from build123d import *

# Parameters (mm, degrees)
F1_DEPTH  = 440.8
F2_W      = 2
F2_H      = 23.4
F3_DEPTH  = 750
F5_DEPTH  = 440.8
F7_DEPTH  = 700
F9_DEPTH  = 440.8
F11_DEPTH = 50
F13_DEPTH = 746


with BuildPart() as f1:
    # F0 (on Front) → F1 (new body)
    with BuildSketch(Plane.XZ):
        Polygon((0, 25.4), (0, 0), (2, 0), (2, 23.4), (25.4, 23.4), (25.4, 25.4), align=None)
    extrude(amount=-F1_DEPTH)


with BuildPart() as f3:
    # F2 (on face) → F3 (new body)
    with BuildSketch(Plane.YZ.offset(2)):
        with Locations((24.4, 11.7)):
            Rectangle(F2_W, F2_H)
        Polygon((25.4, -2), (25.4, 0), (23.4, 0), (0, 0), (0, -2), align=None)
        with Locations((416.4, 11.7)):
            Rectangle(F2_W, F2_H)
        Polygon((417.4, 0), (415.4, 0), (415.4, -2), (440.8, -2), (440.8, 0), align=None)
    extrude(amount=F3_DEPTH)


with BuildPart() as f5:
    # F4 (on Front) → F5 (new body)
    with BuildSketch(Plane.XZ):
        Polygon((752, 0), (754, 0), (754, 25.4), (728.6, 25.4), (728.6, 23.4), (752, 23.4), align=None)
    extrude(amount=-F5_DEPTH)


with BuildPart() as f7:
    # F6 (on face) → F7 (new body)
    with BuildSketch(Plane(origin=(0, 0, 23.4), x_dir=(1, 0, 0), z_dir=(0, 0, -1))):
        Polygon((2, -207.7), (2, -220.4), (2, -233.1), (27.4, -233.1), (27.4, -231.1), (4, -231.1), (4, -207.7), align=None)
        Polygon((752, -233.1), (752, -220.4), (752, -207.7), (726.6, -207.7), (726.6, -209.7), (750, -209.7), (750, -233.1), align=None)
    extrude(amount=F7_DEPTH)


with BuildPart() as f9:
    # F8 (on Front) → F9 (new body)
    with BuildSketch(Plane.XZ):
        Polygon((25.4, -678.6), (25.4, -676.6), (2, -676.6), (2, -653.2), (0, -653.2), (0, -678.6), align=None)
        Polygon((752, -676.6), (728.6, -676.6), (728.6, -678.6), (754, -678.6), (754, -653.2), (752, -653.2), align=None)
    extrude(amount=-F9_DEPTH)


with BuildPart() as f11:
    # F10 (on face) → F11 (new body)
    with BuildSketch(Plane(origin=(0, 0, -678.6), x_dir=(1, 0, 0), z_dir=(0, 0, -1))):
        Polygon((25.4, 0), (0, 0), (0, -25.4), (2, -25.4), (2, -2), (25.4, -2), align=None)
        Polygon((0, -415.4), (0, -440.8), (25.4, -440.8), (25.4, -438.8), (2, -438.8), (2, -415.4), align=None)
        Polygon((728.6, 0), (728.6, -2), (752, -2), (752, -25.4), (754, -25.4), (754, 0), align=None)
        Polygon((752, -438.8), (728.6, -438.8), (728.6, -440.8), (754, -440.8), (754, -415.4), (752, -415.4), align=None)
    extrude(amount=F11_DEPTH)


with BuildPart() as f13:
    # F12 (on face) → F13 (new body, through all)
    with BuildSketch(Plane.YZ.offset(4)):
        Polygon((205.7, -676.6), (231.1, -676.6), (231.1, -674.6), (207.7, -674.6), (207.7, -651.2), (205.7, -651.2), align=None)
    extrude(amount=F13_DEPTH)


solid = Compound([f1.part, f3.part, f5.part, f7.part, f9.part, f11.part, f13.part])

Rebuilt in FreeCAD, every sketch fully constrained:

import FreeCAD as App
import Part
import Sketcher

V = App.Vector

doc = App.newDocument("Part")
params = doc.addObject("Spreadsheet::Sheet", "Params")
for row, (alias, value) in enumerate([
    ("sketch1_width", "2 mm"),
    ("sketch1_width2", "23.4 mm"),
    ("pad1_length", "440.8 mm"),
    ("sketch2_width", "2 mm"),
    ("sketch2_width2", "23.4 mm"),
    ("pad2_length", "750 mm"),
    ("sketch3_width", "2 mm"),
    ("sketch3_width2", "25.4 mm"),
    ("pad3_length", "440.8 mm"),
    ("sketch4_width", "2 mm"),
    ("sketch4_width2", "25.4 mm"),
    ("pad4_length", "700 mm"),
    ("sketch5_width", "2 mm"),
    ("sketch5_width2", "23.4 mm"),
    ("pad5_length", "440.8 mm"),
    ("sketch6_width", "2 mm"),
    ("sketch6_width2", "25.4 mm"),
    ("pad6_length", "50 mm"),
    ("sketch7_width", "2 mm"),
    ("sketch7_width2", "25.4 mm"),
    ("pad7_length", "746 mm"),
], start=1):
    params.set(f"A{row}", alias)
    params.set(f"B{row}", "=" + value)
    params.setAlias(f"B{row}", alias)

body = doc.addObject("PartDesign::Body", "Body")

# Sketch on XZ plane
sketch1 = body.newObject("Sketcher::SketchObject", "Sketch")
sketch1.AttachmentSupport = (doc.getObject("XZ_Plane"), [""])
sketch1.MapMode = "FlatFace"
sketch1.addGeometry([
    Part.LineSegment(V(0, 25.4, 0), V(0, 0, 0)),  # 0
    Part.LineSegment(V(0, 0, 0), V(2, 0, 0)),  # 1
    Part.LineSegment(V(2, 0, 0), V(2, 23.4, 0)),  # 2
    Part.LineSegment(V(2, 23.4, 0), V(25.4, 23.4, 0)),  # 3
    Part.LineSegment(V(25.4, 23.4, 0), V(25.4, 25.4, 0)),  # 4
    Part.LineSegment(V(25.4, 25.4, 0), V(0, 25.4, 0)),  # 5
], False)
sketch1.addConstraint([
    Sketcher.Constraint("Coincident", 0, 2, 1, 1),
    Sketcher.Constraint("Coincident", 1, 2, 2, 1),
    Sketcher.Constraint("Coincident", 2, 2, 3, 1),
    Sketcher.Constraint("Coincident", 3, 2, 4, 1),
    Sketcher.Constraint("Coincident", 4, 2, 5, 1),
    Sketcher.Constraint("Coincident", 5, 2, 0, 1),
    Sketcher.Constraint("Vertical", 0),
    Sketcher.Constraint("Horizontal", 1),
    Sketcher.Constraint("Vertical", 2),
    Sketcher.Constraint("Horizontal", 3),
    Sketcher.Constraint("Vertical", 4),
    Sketcher.Constraint("Horizontal", 5),
    Sketcher.Constraint("Coincident", 0, 2, -1, 1),
    Sketcher.Constraint("Equal", 5, 0),
    Sketcher.Constraint("Equal", 3, 2),
    Sketcher.Constraint("DistanceX", 1, 1, 1, 2, 2.0),
    Sketcher.Constraint("DistanceX", 3, 1, 3, 2, 23.4),
])
sketch1.setExpression("Constraints[15]", "Params.sketch1_width")
sketch1.setExpression("Constraints[16]", "Params.sketch1_width2")
pad1 = body.newObject("PartDesign::Pad", "Pad")
pad1.Profile = sketch1
pad1.setExpression("Length", "Params.pad1_length")
pad1.Reversed = True
body2 = doc.addObject("PartDesign::Body", "Body001")
body2.AllowCompound = True

# Sketch on YZ plane
sketch2 = body2.newObject("Sketcher::SketchObject", "Sketch001")
sketch2.AttachmentSupport = (doc.getObject("YZ_Plane001"), [""])
sketch2.MapMode = "FlatFace"
sketch2.AttachmentOffset = App.Placement(V(0, 0, 2), App.Rotation())
sketch2.addGeometry([
    Part.LineSegment(V(23.4, 23.4, 0), V(23.4, 0, 0)),  # 0
    Part.LineSegment(V(23.4, 0, 0), V(0, 0, 0)),  # 1
    Part.LineSegment(V(0, 0, 0), V(0, -2, 0)),  # 2
    Part.LineSegment(V(0, -2, 0), V(25.4, -2, 0)),  # 3
    Part.LineSegment(V(25.4, -2, 0), V(25.4, 23.4, 0)),  # 4
    Part.LineSegment(V(25.4, 23.4, 0), V(23.4, 23.4, 0)),  # 5
    Part.LineSegment(V(415.4, 23.4, 0), V(415.4, -2, 0)),  # 6
    Part.LineSegment(V(415.4, -2, 0), V(440.8, -2, 0)),  # 7
    Part.LineSegment(V(440.8, -2, 0), V(440.8, 0, 0)),  # 8
    Part.LineSegment(V(440.8, 0, 0), V(417.4, 0, 0)),  # 9
    Part.LineSegment(V(417.4, 0, 0), V(417.4, 23.4, 0)),  # 10
    Part.LineSegment(V(417.4, 23.4, 0), V(415.4, 23.4, 0)),  # 11
], False)
sketch2.addConstraint([
    Sketcher.Constraint("Coincident", 0, 2, 1, 1),
    Sketcher.Constraint("Coincident", 1, 2, 2, 1),
    Sketcher.Constraint("Coincident", 2, 2, 3, 1),
    Sketcher.Constraint("Coincident", 3, 2, 4, 1),
    Sketcher.Constraint("Coincident", 4, 2, 5, 1),
    Sketcher.Constraint("Coincident", 5, 2, 0, 1),
    Sketcher.Constraint("Coincident", 6, 2, 7, 1),
    Sketcher.Constraint("Coincident", 7, 2, 8, 1),
    Sketcher.Constraint("Coincident", 8, 2, 9, 1),
    Sketcher.Constraint("Coincident", 9, 2, 10, 1),
    Sketcher.Constraint("Coincident", 10, 2, 11, 1),
    Sketcher.Constraint("Coincident", 11, 2, 6, 1),
    Sketcher.Constraint("Vertical", 0),
    Sketcher.Constraint("Horizontal", 1),
    Sketcher.Constraint("Vertical", 2),
    Sketcher.Constraint("Horizontal", 3),
    Sketcher.Constraint("Vertical", 4),
    Sketcher.Constraint("Horizontal", 5),
    Sketcher.Constraint("Vertical", 6),
    Sketcher.Constraint("Horizontal", 7),
    Sketcher.Constraint("Vertical", 8),
    Sketcher.Constraint("Horizontal", 9),
    Sketcher.Constraint("Vertical", 10),
    Sketcher.Constraint("Horizontal", 11),
    Sketcher.Constraint("Coincident", 1, 2, -1, 1),
    Sketcher.Constraint("PointOnObject", 8, 2, -1),
    Sketcher.Constraint("Horizontal", 3, 2, 6, 2),
    Sketcher.Constraint("Horizontal", 5, 2, 10, 2),
    Sketcher.Constraint("Equal", 3, 7),
    Sketcher.Constraint("Equal", 1, 9),
    Sketcher.Constraint("Equal", 9, 0),
    Sketcher.Constraint("Equal", 11, 2),
    Sketcher.Constraint("DistanceX", 5, 2, 5, 1, 2.0),
    Sketcher.Constraint("DistanceX", 1, 2, 1, 1, 23.4),
    Sketcher.Constraint("DistanceX", 3, 2, 6, 2, 390.0),
])
sketch2.setExpression("Constraints[32]", "Params.sketch2_width")
sketch2.setExpression("Constraints[33]", "Params.sketch2_width2")
pad2 = body2.newObject("PartDesign::Pad", "Pad001")
pad2.Profile = sketch2
pad2.setExpression("Length", "Params.pad2_length")
body3 = doc.addObject("PartDesign::Body", "Body002")

# Sketch on XZ plane
sketch3 = body3.newObject("Sketcher::SketchObject", "Sketch002")
sketch3.AttachmentSupport = (doc.getObject("XZ_Plane002"), [""])
sketch3.MapMode = "FlatFace"
sketch3.addGeometry([
    Part.LineSegment(V(752, 0, 0), V(754, 0, 0)),  # 0
    Part.LineSegment(V(754, 0, 0), V(754, 25.4, 0)),  # 1
    Part.LineSegment(V(754, 25.4, 0), V(728.6, 25.4, 0)),  # 2
    Part.LineSegment(V(728.6, 25.4, 0), V(728.6, 23.4, 0)),  # 3
    Part.LineSegment(V(728.6, 23.4, 0), V(752, 23.4, 0)),  # 4
    Part.LineSegment(V(752, 23.4, 0), V(752, 0, 0)),  # 5
], False)
sketch3.addConstraint([
    Sketcher.Constraint("Coincident", 0, 2, 1, 1),
    Sketcher.Constraint("Coincident", 1, 2, 2, 1),
    Sketcher.Constraint("Coincident", 2, 2, 3, 1),
    Sketcher.Constraint("Coincident", 3, 2, 4, 1),
    Sketcher.Constraint("Coincident", 4, 2, 5, 1),
    Sketcher.Constraint("Coincident", 5, 2, 0, 1),
    Sketcher.Constraint("Horizontal", 0),
    Sketcher.Constraint("Vertical", 1),
    Sketcher.Constraint("Horizontal", 2),
    Sketcher.Constraint("Vertical", 3),
    Sketcher.Constraint("Horizontal", 4),
    Sketcher.Constraint("Vertical", 5),
    Sketcher.Constraint("PointOnObject", 0, 2, -1),
    Sketcher.Constraint("Equal", 2, 1),
    Sketcher.Constraint("Equal", 0, 3),
    Sketcher.Constraint("DistanceX", 0, 1, 0, 2, 2.0),
    Sketcher.Constraint("DistanceX", 2, 2, 2, 1, 25.4),
    Sketcher.Constraint("DistanceX", -1, 1, 0, 2, 754.0),
])
sketch3.setExpression("Constraints[15]", "Params.sketch3_width")
sketch3.setExpression("Constraints[16]", "Params.sketch3_width2")
pad3 = body3.newObject("PartDesign::Pad", "Pad002")
pad3.Profile = sketch3
pad3.setExpression("Length", "Params.pad3_length")
pad3.Reversed = True
body4 = doc.addObject("PartDesign::Body", "Body003")
body4.AllowCompound = True

# Sketch on XY plane
sketch4 = body4.newObject("Sketcher::SketchObject", "Sketch003")
sketch4.AttachmentSupport = (doc.getObject("XY_Plane003"), [""])
sketch4.MapMode = "FlatFace"
sketch4.AttachmentOffset = App.Placement(V(0, 0, 23.4), App.Rotation())
sketch4.addGeometry([
    Part.LineSegment(V(2, 207.7, 0), V(2, 233.1, 0)),  # 0
    Part.LineSegment(V(2, 233.1, 0), V(27.4, 233.1, 0)),  # 1
    Part.LineSegment(V(27.4, 233.1, 0), V(27.4, 231.1, 0)),  # 2
    Part.LineSegment(V(27.4, 231.1, 0), V(4, 231.1, 0)),  # 3
    Part.LineSegment(V(4, 231.1, 0), V(4, 207.7, 0)),  # 4
    Part.LineSegment(V(4, 207.7, 0), V(2, 207.7, 0)),  # 5
    Part.LineSegment(V(752, 233.1, 0), V(752, 207.7, 0)),  # 6
    Part.LineSegment(V(752, 207.7, 0), V(726.6, 207.7, 0)),  # 7
    Part.LineSegment(V(726.6, 207.7, 0), V(726.6, 209.7, 0)),  # 8
    Part.LineSegment(V(726.6, 209.7, 0), V(750, 209.7, 0)),  # 9
    Part.LineSegment(V(750, 209.7, 0), V(750, 233.1, 0)),  # 10
    Part.LineSegment(V(750, 233.1, 0), V(752, 233.1, 0)),  # 11
], False)
sketch4.addConstraint([
    Sketcher.Constraint("Coincident", 0, 2, 1, 1),
    Sketcher.Constraint("Coincident", 1, 2, 2, 1),
    Sketcher.Constraint("Coincident", 2, 2, 3, 1),
    Sketcher.Constraint("Coincident", 3, 2, 4, 1),
    Sketcher.Constraint("Coincident", 4, 2, 5, 1),
    Sketcher.Constraint("Coincident", 5, 2, 0, 1),
    Sketcher.Constraint("Coincident", 6, 2, 7, 1),
    Sketcher.Constraint("Coincident", 7, 2, 8, 1),
    Sketcher.Constraint("Coincident", 8, 2, 9, 1),
    Sketcher.Constraint("Coincident", 9, 2, 10, 1),
    Sketcher.Constraint("Coincident", 10, 2, 11, 1),
    Sketcher.Constraint("Coincident", 11, 2, 6, 1),
    Sketcher.Constraint("Vertical", 0),
    Sketcher.Constraint("Horizontal", 1),
    Sketcher.Constraint("Vertical", 2),
    Sketcher.Constraint("Horizontal", 3),
    Sketcher.Constraint("Vertical", 4),
    Sketcher.Constraint("Horizontal", 5),
    Sketcher.Constraint("Vertical", 6),
    Sketcher.Constraint("Horizontal", 7),
    Sketcher.Constraint("Vertical", 8),
    Sketcher.Constraint("Horizontal", 9),
    Sketcher.Constraint("Vertical", 10),
    Sketcher.Constraint("Horizontal", 11),
    Sketcher.Constraint("Horizontal", 5, 2, 6, 2),
    Sketcher.Constraint("Horizontal", 1, 2, 10, 2),
    Sketcher.Constraint("Equal", 1, 7),
    Sketcher.Constraint("Equal", 3, 9),
    Sketcher.Constraint("Equal", 7, 0),
    Sketcher.Constraint("Equal", 11, 2),
    Sketcher.Constraint("Equal", 2, 8),
    Sketcher.Constraint("DistanceX", 5, 2, 5, 1, 2.0),
    Sketcher.Constraint("DistanceX", 1, 1, 1, 2, 25.4),
    Sketcher.Constraint("DistanceX", -1, 1, 0, 2, 2.0),
    Sketcher.Constraint("DistanceX", -1, 1, 6, 2, 752.0),
    Sketcher.Constraint("DistanceY", -1, 1, 0, 2, 233.1),
])
sketch4.setExpression("Constraints[31]", "Params.sketch4_width")
sketch4.setExpression("Constraints[32]", "Params.sketch4_width2")
pad4 = body4.newObject("PartDesign::Pad", "Pad003")
pad4.Profile = sketch4
pad4.setExpression("Length", "Params.pad4_length")
pad4.Reversed = True
body5 = doc.addObject("PartDesign::Body", "Body004")
body5.AllowCompound = True

# Sketch on XZ plane
sketch5 = body5.newObject("Sketcher::SketchObject", "Sketch004")
sketch5.AttachmentSupport = (doc.getObject("XZ_Plane004"), [""])
sketch5.MapMode = "FlatFace"
sketch5.addGeometry([
    Part.LineSegment(V(25.4, -678.6, 0), V(25.4, -676.6, 0)),  # 0
    Part.LineSegment(V(25.4, -676.6, 0), V(2, -676.6, 0)),  # 1
    Part.LineSegment(V(2, -676.6, 0), V(2, -653.2, 0)),  # 2
    Part.LineSegment(V(2, -653.2, 0), V(0, -653.2, 0)),  # 3
    Part.LineSegment(V(0, -653.2, 0), V(0, -678.6, 0)),  # 4
    Part.LineSegment(V(0, -678.6, 0), V(25.4, -678.6, 0)),  # 5
    Part.LineSegment(V(752, -676.6, 0), V(728.6, -676.6, 0)),  # 6
    Part.LineSegment(V(728.6, -676.6, 0), V(728.6, -678.6, 0)),  # 7
    Part.LineSegment(V(728.6, -678.6, 0), V(754, -678.6, 0)),  # 8
    Part.LineSegment(V(754, -678.6, 0), V(754, -653.2, 0)),  # 9
    Part.LineSegment(V(754, -653.2, 0), V(752, -653.2, 0)),  # 10
    Part.LineSegment(V(752, -653.2, 0), V(752, -676.6, 0)),  # 11
], False)
sketch5.addConstraint([
    Sketcher.Constraint("Coincident", 0, 2, 1, 1),
    Sketcher.Constraint("Coincident", 1, 2, 2, 1),
    Sketcher.Constraint("Coincident", 2, 2, 3, 1),
    Sketcher.Constraint("Coincident", 3, 2, 4, 1),
    Sketcher.Constraint("Coincident", 4, 2, 5, 1),
    Sketcher.Constraint("Coincident", 5, 2, 0, 1),
    Sketcher.Constraint("Coincident", 6, 2, 7, 1),
    Sketcher.Constraint("Coincident", 7, 2, 8, 1),
    Sketcher.Constraint("Coincident", 8, 2, 9, 1),
    Sketcher.Constraint("Coincident", 9, 2, 10, 1),
    Sketcher.Constraint("Coincident", 10, 2, 11, 1),
    Sketcher.Constraint("Coincident", 11, 2, 6, 1),
    Sketcher.Constraint("Vertical", 0),
    Sketcher.Constraint("Horizontal", 1),
    Sketcher.Constraint("Vertical", 2),
    Sketcher.Constraint("Horizontal", 3),
    Sketcher.Constraint("Vertical", 4),
    Sketcher.Constraint("Horizontal", 5),
    Sketcher.Constraint("Horizontal", 6),
    Sketcher.Constraint("Vertical", 7),
    Sketcher.Constraint("Horizontal", 8),
    Sketcher.Constraint("Vertical", 9),
    Sketcher.Constraint("Horizontal", 10),
    Sketcher.Constraint("Vertical", 11),
    Sketcher.Constraint("PointOnObject", 3, 2, -2),
    Sketcher.Constraint("Horizontal", 1, 2, 6, 2),
    Sketcher.Constraint("Horizontal", 5, 2, 7, 2),
    Sketcher.Constraint("Horizontal", 3, 2, 9, 2),
    Sketcher.Constraint("Equal", 1, 6),
    Sketcher.Constraint("Equal", 5, 8),
    Sketcher.Constraint("Equal", 10, 0),
    Sketcher.Constraint("Equal", 6, 2),
    Sketcher.Constraint("DistanceX", 3, 2, 3, 1, 2.0),
    Sketcher.Constraint("DistanceX", 1, 2, 1, 1, 23.4),
    Sketcher.Constraint("DistanceX", -1, 1, 8, 2, 754.0),
    Sketcher.Constraint("DistanceY", 0, 2, -1, 1, 676.6),
])
sketch5.setExpression("Constraints[32]", "Params.sketch5_width")
sketch5.setExpression("Constraints[33]", "Params.sketch5_width2")
pad5 = body5.newObject("PartDesign::Pad", "Pad004")
pad5.Profile = sketch5
pad5.setExpression("Length", "Params.pad5_length")
pad5.Reversed = True
body6 = doc.addObject("PartDesign::Body", "Body005")
body6.AllowCompound = True

# Sketch on XY plane
sketch6 = body6.newObject("Sketcher::SketchObject", "Sketch005")
sketch6.AttachmentSupport = (doc.getObject("XY_Plane005"), [""])
sketch6.MapMode = "FlatFace"
sketch6.AttachmentOffset = App.Placement(V(0, 0, -678.6), App.Rotation())
sketch6.addGeometry([
    Part.LineSegment(V(25.4, 0, 0), V(0, 0, 0)),  # 0
    Part.LineSegment(V(0, 0, 0), V(0, 25.4, 0)),  # 1
    Part.LineSegment(V(0, 25.4, 0), V(2, 25.4, 0)),  # 2
    Part.LineSegment(V(2, 25.4, 0), V(2, 2, 0)),  # 3
    Part.LineSegment(V(2, 2, 0), V(25.4, 2, 0)),  # 4
    Part.LineSegment(V(25.4, 2, 0), V(25.4, 0, 0)),  # 5
    Part.LineSegment(V(0, 415.4, 0), V(0, 440.8, 0)),  # 6
    Part.LineSegment(V(0, 440.8, 0), V(25.4, 440.8, 0)),  # 7
    Part.LineSegment(V(25.4, 440.8, 0), V(25.4, 438.8, 0)),  # 8
    Part.LineSegment(V(25.4, 438.8, 0), V(2, 438.8, 0)),  # 9
    Part.LineSegment(V(2, 438.8, 0), V(2, 415.4, 0)),  # 10
    Part.LineSegment(V(2, 415.4, 0), V(0, 415.4, 0)),  # 11
    Part.LineSegment(V(728.6, 0, 0), V(728.6, 2, 0)),  # 12
    Part.LineSegment(V(728.6, 2, 0), V(752, 2, 0)),  # 13
    Part.LineSegment(V(752, 2, 0), V(752, 25.4, 0)),  # 14
    Part.LineSegment(V(752, 25.4, 0), V(754, 25.4, 0)),  # 15
    Part.LineSegment(V(754, 25.4, 0), V(754, 0, 0)),  # 16
    Part.LineSegment(V(754, 0, 0), V(728.6, 0, 0)),  # 17
    Part.LineSegment(V(752, 438.8, 0), V(728.6, 438.8, 0)),  # 18
    Part.LineSegment(V(728.6, 438.8, 0), V(728.6, 440.8, 0)),  # 19
    Part.LineSegment(V(728.6, 440.8, 0), V(754, 440.8, 0)),  # 20
    Part.LineSegment(V(754, 440.8, 0), V(754, 415.4, 0)),  # 21
    Part.LineSegment(V(754, 415.4, 0), V(752, 415.4, 0)),  # 22
    Part.LineSegment(V(752, 415.4, 0), V(752, 438.8, 0)),  # 23
], False)
sketch6.addConstraint([
    Sketcher.Constraint("Coincident", 0, 2, 1, 1),
    Sketcher.Constraint("Coincident", 1, 2, 2, 1),
    Sketcher.Constraint("Coincident", 2, 2, 3, 1),
    Sketcher.Constraint("Coincident", 3, 2, 4, 1),
    Sketcher.Constraint("Coincident", 4, 2, 5, 1),
    Sketcher.Constraint("Coincident", 5, 2, 0, 1),
    Sketcher.Constraint("Coincident", 6, 2, 7, 1),
    Sketcher.Constraint("Coincident", 7, 2, 8, 1),
    Sketcher.Constraint("Coincident", 8, 2, 9, 1),
    Sketcher.Constraint("Coincident", 9, 2, 10, 1),
    Sketcher.Constraint("Coincident", 10, 2, 11, 1),
    Sketcher.Constraint("Coincident", 11, 2, 6, 1),
    Sketcher.Constraint("Coincident", 12, 2, 13, 1),
    Sketcher.Constraint("Coincident", 13, 2, 14, 1),
    Sketcher.Constraint("Coincident", 14, 2, 15, 1),
    Sketcher.Constraint("Coincident", 15, 2, 16, 1),
    Sketcher.Constraint("Coincident", 16, 2, 17, 1),
    Sketcher.Constraint("Coincident", 17, 2, 12, 1),
    Sketcher.Constraint("Coincident", 18, 2, 19, 1),
    Sketcher.Constraint("Coincident", 19, 2, 20, 1),
    Sketcher.Constraint("Coincident", 20, 2, 21, 1),
    Sketcher.Constraint("Coincident", 21, 2, 22, 1),
    Sketcher.Constraint("Coincident", 22, 2, 23, 1),
    Sketcher.Constraint("Coincident", 23, 2, 18, 1),
    Sketcher.Constraint("Horizontal", 0),
    Sketcher.Constraint("Vertical", 1),
    Sketcher.Constraint("Horizontal", 2),
    Sketcher.Constraint("Vertical", 3),
    Sketcher.Constraint("Horizontal", 4),
    Sketcher.Constraint("Vertical", 5),
    Sketcher.Constraint("Vertical", 6),
    Sketcher.Constraint("Horizontal", 7),
    Sketcher.Constraint("Vertical", 8),
    Sketcher.Constraint("Horizontal", 9),
    Sketcher.Constraint("Vertical", 10),
    Sketcher.Constraint("Horizontal", 11),
    Sketcher.Constraint("Vertical", 12),
    Sketcher.Constraint("Horizontal", 13),
    Sketcher.Constraint("Vertical", 14),
    Sketcher.Constraint("Horizontal", 15),
    Sketcher.Constraint("Vertical", 16),
    Sketcher.Constraint("Horizontal", 17),
    Sketcher.Constraint("Horizontal", 18),
    Sketcher.Constraint("Vertical", 19),
    Sketcher.Constraint("Horizontal", 20),
    Sketcher.Constraint("Vertical", 21),
    Sketcher.Constraint("Horizontal", 22),
    Sketcher.Constraint("Vertical", 23),
    Sketcher.Constraint("Coincident", 0, 2, -1, 1),
    Sketcher.Constraint("PointOnObject", 6, 2, -2),
    Sketcher.Constraint("PointOnObject", 16, 2, -1),
    Sketcher.Constraint("Horizontal", 4, 2, 12, 2),
    Sketcher.Constraint("Horizontal", 2, 2, 14, 2),
    Sketcher.Constraint("Horizontal", 9, 2, 18, 2),
    Sketcher.Constraint("Horizontal", 7, 2, 19, 2),
    Sketcher.Constraint("Horizontal", 11, 2, 21, 2),
    Sketcher.Constraint("Vertical", 5, 2, 7, 2),
    Sketcher.Constraint("Vertical", 3, 2, 9, 2),
    Sketcher.Constraint("Vertical", 17, 2, 18, 2),
    Sketcher.Constraint("Vertical", 16, 2, 20, 2),
    Sketcher.Constraint("Vertical", 14, 2, 22, 2),
    Sketcher.Constraint("Equal", 9, 13),
    Sketcher.Constraint("Equal", 11, 15),
    Sketcher.Constraint("Equal", 20, 1),
    Sketcher.Constraint("Equal", 18, 3),
    Sketcher.Constraint("Equal", 1, 6),
    Sketcher.Constraint("Equal", 5, 8),
    Sketcher.Constraint("DistanceX", 2, 1, 2, 2, 2.0),
    Sketcher.Constraint("DistanceX", 0, 2, 0, 1, 25.4),
    Sketcher.Constraint("DistanceX", -1, 1, 13, 2, 752.0),
    Sketcher.Constraint("DistanceY", 2, 2, 10, 2, 390.0),
])
sketch6.setExpression("Constraints[67]", "Params.sketch6_width")
sketch6.setExpression("Constraints[68]", "Params.sketch6_width2")
pad6 = body6.newObject("PartDesign::Pad", "Pad005")
pad6.Profile = sketch6
pad6.setExpression("Length", "Params.pad6_length")
pad6.Reversed = True
body7 = doc.addObject("PartDesign::Body", "Body006")

# Sketch on YZ plane
sketch7 = body7.newObject("Sketcher::SketchObject", "Sketch006")
sketch7.AttachmentSupport = (doc.getObject("YZ_Plane006"), [""])
sketch7.MapMode = "FlatFace"
sketch7.AttachmentOffset = App.Placement(V(0, 0, 4), App.Rotation())
sketch7.addGeometry([
    Part.LineSegment(V(205.7, -676.6, 0), V(231.1, -676.6, 0)),  # 0
    Part.LineSegment(V(231.1, -676.6, 0), V(231.1, -674.6, 0)),  # 1
    Part.LineSegment(V(231.1, -674.6, 0), V(207.7, -674.6, 0)),  # 2
    Part.LineSegment(V(207.7, -674.6, 0), V(207.7, -651.2, 0)),  # 3
    Part.LineSegment(V(207.7, -651.2, 0), V(205.7, -651.2, 0)),  # 4
    Part.LineSegment(V(205.7, -651.2, 0), V(205.7, -676.6, 0)),  # 5
], False)
sketch7.addConstraint([
    Sketcher.Constraint("Coincident", 0, 2, 1, 1),
    Sketcher.Constraint("Coincident", 1, 2, 2, 1),
    Sketcher.Constraint("Coincident", 2, 2, 3, 1),
    Sketcher.Constraint("Coincident", 3, 2, 4, 1),
    Sketcher.Constraint("Coincident", 4, 2, 5, 1),
    Sketcher.Constraint("Coincident", 5, 2, 0, 1),
    Sketcher.Constraint("Horizontal", 0),
    Sketcher.Constraint("Vertical", 1),
    Sketcher.Constraint("Horizontal", 2),
    Sketcher.Constraint("Vertical", 3),
    Sketcher.Constraint("Horizontal", 4),
    Sketcher.Constraint("Vertical", 5),
    Sketcher.Constraint("Equal", 4, 1),
    Sketcher.Constraint("Equal", 2, 3),
    Sketcher.Constraint("DistanceX", 4, 2, 4, 1, 2.0),
    Sketcher.Constraint("DistanceX", 0, 1, 0, 2, 25.4),
    Sketcher.Constraint("DistanceX", -1, 1, 0, 2, 231.1),
    Sketcher.Constraint("DistanceY", 0, 2, -1, 1, 676.6),
])
sketch7.setExpression("Constraints[14]", "Params.sketch7_width")
sketch7.setExpression("Constraints[15]", "Params.sketch7_width2")
pad7 = body7.newObject("PartDesign::Pad", "Pad006")
pad7.Profile = sketch7
pad7.setExpression("Length", "Params.pad7_length")

doc.recompute()
